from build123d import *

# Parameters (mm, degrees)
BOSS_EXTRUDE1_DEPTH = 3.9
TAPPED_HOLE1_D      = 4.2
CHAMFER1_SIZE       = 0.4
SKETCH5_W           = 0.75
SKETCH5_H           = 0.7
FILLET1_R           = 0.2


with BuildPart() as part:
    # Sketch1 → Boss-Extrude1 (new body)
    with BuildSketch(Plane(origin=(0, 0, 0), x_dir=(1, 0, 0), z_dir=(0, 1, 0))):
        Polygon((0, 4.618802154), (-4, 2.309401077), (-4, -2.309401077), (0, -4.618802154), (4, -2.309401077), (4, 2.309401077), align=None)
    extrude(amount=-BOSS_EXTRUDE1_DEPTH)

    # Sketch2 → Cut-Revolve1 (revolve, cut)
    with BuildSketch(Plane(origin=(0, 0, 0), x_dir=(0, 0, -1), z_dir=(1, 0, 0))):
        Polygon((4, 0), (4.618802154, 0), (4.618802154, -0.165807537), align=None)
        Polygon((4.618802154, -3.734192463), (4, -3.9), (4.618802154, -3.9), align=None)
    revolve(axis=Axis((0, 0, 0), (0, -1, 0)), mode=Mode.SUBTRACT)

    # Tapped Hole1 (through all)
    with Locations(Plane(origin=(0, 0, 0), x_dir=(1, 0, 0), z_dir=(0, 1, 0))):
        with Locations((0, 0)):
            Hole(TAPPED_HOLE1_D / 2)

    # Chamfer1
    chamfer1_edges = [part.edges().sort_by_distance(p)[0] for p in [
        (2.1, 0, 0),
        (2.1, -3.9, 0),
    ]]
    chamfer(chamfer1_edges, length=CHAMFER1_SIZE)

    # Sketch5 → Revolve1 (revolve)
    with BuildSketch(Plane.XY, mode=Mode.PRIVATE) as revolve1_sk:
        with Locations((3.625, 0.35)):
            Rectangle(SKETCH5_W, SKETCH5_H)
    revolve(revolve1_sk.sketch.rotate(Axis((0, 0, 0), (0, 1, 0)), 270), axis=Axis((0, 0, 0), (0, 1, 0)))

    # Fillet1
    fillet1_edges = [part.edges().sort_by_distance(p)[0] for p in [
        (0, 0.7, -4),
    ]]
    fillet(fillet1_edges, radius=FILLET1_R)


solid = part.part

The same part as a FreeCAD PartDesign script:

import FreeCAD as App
import Part
import Sketcher
Q = App.Units.Quantity


def edges_at(feature, points):
    """Names of the edges that pass closest to the given points."""
    edges = feature.Shape.Edges
    near = lambda p: min(range(len(edges)), key=lambda i: edges[i].distToShape(Part.Vertex(*p))[0])
    return sorted({f"Edge{near(p) + 1}" for p in points})

doc = App.newDocument("Part")
body = doc.addObject("PartDesign::Body", "Body")

sketch1 = body.newObject("Sketcher::SketchObject", "Sketch")
sketch1.AttachmentSupport = (doc.getObject("XZ_Plane"), [""])
sketch1.MapMode = "FlatFace"
sketch1.addGeometry([
    Part.LineSegment(App.Vector(0, -4.6, 0), App.Vector(-4, -2.3, 0)),
    Part.LineSegment(App.Vector(-4, -2.3, 0), App.Vector(-4, 2.3, 0)),
    Part.LineSegment(App.Vector(-4, 2.3, 0), App.Vector(0, 4.6, 0)),
    Part.LineSegment(App.Vector(0, 4.6, 0), App.Vector(4, 2.3, 0)),
    Part.LineSegment(App.Vector(4, 2.3, 0), App.Vector(4, -2.3, 0)),
    Part.LineSegment(App.Vector(4, -2.3, 0), App.Vector(0, -4.6, 0)),
], False)
sketch1.addConstraint([
    Sketcher.Constraint("Coincident", 0, 2, 1, 1),
    Sketcher.Constraint("Coincident", 1, 2, 2, 1),
    Sketcher.Constraint("Coincident", 2, 2, 3, 1),
    Sketcher.Constraint("Coincident", 3, 2, 4, 1),
    Sketcher.Constraint("Coincident", 4, 2, 5, 1),
    Sketcher.Constraint("Coincident", 5, 2, 0, 1),
    Sketcher.Constraint("Vertical", 1),
    Sketcher.Constraint("Vertical", 4),
    Sketcher.Constraint("Symmetric", 0, 2, 3, 2, -1, 1),
    Sketcher.Constraint("Symmetric", 2, 2, 5, 2, -1, 1),
    Sketcher.Constraint("PointOnObject", 2, 2, -2),
    Sketcher.Constraint("Parallel", 2, 5),
    Sketcher.Constraint("Horizontal", 1, 2, 3, 2),
    Sketcher.Constraint("Angle", 0, Q("150 deg")),
    Sketcher.Constraint("DistanceX", 0, 2, -1, 1, 4.0),
    Sketcher.Constraint("DistanceY", 0, 2, -1, 1, 2.309401),
])
pad1 = body.newObject("PartDesign::Pad", "Pad")
pad1.Profile = sketch1
pad1.Length = 3.9

sketch2 = body.newObject("Sketcher::SketchObject", "Sketch001")
sketch2.AttachmentSupport = (doc.getObject("YZ_Plane"), [""])
sketch2.MapMode = "FlatFace"
sketch2.addGeometry([
    Part.LineSegment(App.Vector(0, -4.62, 0), App.Vector(0, -4, 0)),
    Part.LineSegment(App.Vector(0, -4, 0), App.Vector(-0.17, -4.62, 0)),
    Part.LineSegment(App.Vector(-0.17, -4.62, 0), App.Vector(0, -4.62, 0)),
    Part.LineSegment(App.Vector(-3.73, -4.62, 0), App.Vector(-3.9, -4, 0)),
    Part.LineSegment(App.Vector(-3.9, -4, 0), App.Vector(-3.9, -4.62, 0)),
    Part.LineSegment(App.Vector(-3.9, -4.62, 0), App.Vector(-3.73, -4.62, 0)),
], False)
sketch2.addConstraint([
    Sketcher.Constraint("Coincident", 0, 2, 1, 1),
    Sketcher.Constraint("Coincident", 1, 2, 2, 1),
    Sketcher.Constraint("Coincident", 2, 2, 0, 1),
    Sketcher.Constraint("Coincident", 3, 2, 4, 1),
    Sketcher.Constraint("Coincident", 4, 2, 5, 1),
    Sketcher.Constraint("Coincident", 5, 2, 3, 1),
    Sketcher.Constraint("Vertical", 0),
    Sketcher.Constraint("Horizontal", 2),
    Sketcher.Constraint("Vertical", 4),
    Sketcher.Constraint("Horizontal", 5),
    Sketcher.Constraint("PointOnObject", 0, 2, -2),
    Sketcher.Constraint("Horizontal", 0, 2, 3, 2),
    Sketcher.Constraint("Horizontal", 2, 2, 4, 2),
    Sketcher.Constraint("Equal", 2, 5),
    Sketcher.Constraint("Angle", 1, Q("-105 deg")),
    Sketcher.Constraint("DistanceY", 0, 2, -1, 1, 4.0),
    Sketcher.Constraint("DistanceX", 3, 2, -1, 1, 3.9),
    Sketcher.Constraint("Distance", 1, 0.640631),
])
groove = body.newObject("PartDesign::Groove", "Groove")
groove.Profile = sketch2
groove.ReferenceAxis = (sketch2, ["H_Axis"])
groove.Angle = 360

sketch3 = body.newObject("Sketcher::SketchObject", "Sketch002")
sketch3.AttachmentSupport = (doc.getObject("XZ_Plane"), [""])
sketch3.MapMode = "FlatFace"
sketch3.addGeometry(Part.Circle(App.Vector(0, 0, 0), App.Vector(0, 0, 1), 2.1), False)
sketch3.addConstraint([
    Sketcher.Constraint("Coincident", 0, 3, -1, 1),
    Sketcher.Constraint("Diameter", 0, 4.2),
])
doc.recompute()
hole = body.newObject("PartDesign::Hole", "Hole")
hole.Profile = sketch3
hole.ThreadType = "None"
hole.Diameter = 4.2
hole.DepthType = "ThroughAll"
hole.Reversed = True
doc.recompute()

chamfer = body.newObject("PartDesign::Chamfer", "Chamfer")
chamfer.Base = (hole, edges_at(hole, [(2.1, 0, 0), (2.1, -3.9, 0)]))
chamfer.Size = 0.4

sketch4 = body.newObject("Sketcher::SketchObject", "Sketch003")
sketch4.AttachmentSupport = (doc.getObject("XY_Plane"), [""])
sketch4.MapMode = "FlatFace"
sketch4.addGeometry([
    Part.LineSegment(App.Vector(3.2, 0.7, 0), App.Vector(3.2, 0, 0)),
    Part.LineSegment(App.Vector(3.2, 0, 0), App.Vector(4, 0, 0)),
    Part.LineSegment(App.Vector(4, 0, 0), App.Vector(4, 0.7, 0)),
    Part.LineSegment(App.Vector(4, 0.7, 0), App.Vector(3.2, 0.7, 0)),
], False)
sketch4.addConstraint([
    Sketcher.Constraint("Coincident", 0, 2, 1, 1),
    Sketcher.Constraint("Coincident", 1, 2, 2, 1),
    Sketcher.Constraint("Coincident", 2, 2, 3, 1),
    Sketcher.Constraint("Coincident", 3, 2, 0, 1),
    Sketcher.Constraint("Vertical", 0),
    Sketcher.Constraint("Horizontal", 1),
    Sketcher.Constraint("Vertical", 2),
    Sketcher.Constraint("Horizontal", 3),
    Sketcher.Constraint("PointOnObject", 0, 2, -1),
    Sketcher.Constraint("DistanceY", 0, 2, 0, 1, 0.7),
    Sketcher.Constraint("DistanceX", -1, 1, 1, 2, 4.0),
    Sketcher.Constraint("DistanceX", 1, 1, 1, 2, 0.75),
])
revolution = body.newObject("PartDesign::Revolution", "Revolution")
revolution.Profile = sketch4
revolution.ReferenceAxis = (sketch4, ["V_Axis"])
revolution.Angle = 360
doc.recompute()

fillet = body.newObject("PartDesign::Fillet", "Fillet")
fillet.Base = (revolution, edges_at(revolution, [(0, 0.7, -4)]))
fillet.Radius = 0.2

doc.recompute()
